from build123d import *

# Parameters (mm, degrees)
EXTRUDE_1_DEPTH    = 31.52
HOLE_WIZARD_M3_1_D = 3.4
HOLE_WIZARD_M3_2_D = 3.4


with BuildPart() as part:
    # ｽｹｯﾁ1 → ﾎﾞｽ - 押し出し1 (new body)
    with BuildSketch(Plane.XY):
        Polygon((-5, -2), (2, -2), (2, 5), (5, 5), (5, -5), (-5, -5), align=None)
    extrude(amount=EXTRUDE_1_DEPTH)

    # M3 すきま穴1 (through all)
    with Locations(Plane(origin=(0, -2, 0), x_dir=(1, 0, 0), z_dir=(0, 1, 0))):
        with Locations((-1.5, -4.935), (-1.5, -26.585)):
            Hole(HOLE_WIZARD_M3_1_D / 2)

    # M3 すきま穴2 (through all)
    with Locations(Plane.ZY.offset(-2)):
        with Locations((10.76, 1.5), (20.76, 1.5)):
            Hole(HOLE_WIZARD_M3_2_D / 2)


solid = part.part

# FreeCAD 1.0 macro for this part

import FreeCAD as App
import Part
import Sketcher

V = App.Vector
Q = App.Units.Quantity


def add_polygon(sketch, points):
    """Adds a closed chain of lines whose ends are joined by coincident constraints."""
    first, n = sketch.GeometryCount, len(points)
    for a, b in zip(points, points[1:] + points[:1]):
        sketch.addGeometry(Part.LineSegment(App.Vector(*a, 0), App.Vector(*b, 0)), False)
    for i in range(n):
        sketch.addConstraint(Sketcher.Constraint("Coincident", first + i, 2, first + (i + 1) % n, 1))

doc = App.newDocument("Part")
body = doc.addObject("PartDesign::Body", "Body")

sketch1 = doc.addObject("Sketcher::SketchObject", "Sketch")
body.addObject(sketch1)
sketch1.AttachmentSupport = (doc.XY_Plane, [""])
sketch1.MapMode = "FlatFace"
add_polygon(sketch1, [(2, -2), (-5, -2), (-5, -5), (5, -5), (5, 5), (2, 5)])
sketch1.addConstraint([
    Sketcher.Constraint("Horizontal", 0),
    Sketcher.Constraint("Vertical", 1),
    Sketcher.Constraint("Horizontal", 2),
    Sketcher.Constraint("Vertical", 3),
    Sketcher.Constraint("Horizontal", 4),
    Sketcher.Constraint("Vertical", 5),
    Sketcher.Constraint("Symmetric", 1, 2, 3, 2, -1, 1),
    Sketcher.Constraint("Equal", 4, 1),
    Sketcher.Constraint("Equal", 2, 3),
    Sketcher.Constraint("DistanceX", 0, 2, 0, 1, Q("7 mm")),
    Sketcher.Constraint("DistanceX", 2, 1, 2, 2, Q("10 mm")),
])
pad1 = doc.addObject("PartDesign::Pad", "Pad")
body.addObject(pad1)
pad1.Profile = sketch1
pad1.Length = 31.52

sketch2 = doc.addObject("Sketcher::SketchObject", "Sketch001")
body.addObject(sketch2)
sketch2.AttachmentSupport = (doc.XZ_Plane, [""])
sketch2.MapMode = "FlatFace"
sketch2.AttachmentOffset = App.Placement(V(0, 0, 2), App.Rotation())
sketch2.addGeometry([
    Part.Circle(V(-1.5, 4.935, 0), V(0, 0, 1), 1.7),
    Part.Circle(V(-1.5, 26.585, 0), V(0, 0, 1), 1.7),
], False)
sketch2.addConstraint([
    Sketcher.Constraint("Equal", 0, 1),
    Sketcher.Constraint("Vertical", 0, 3, 1, 3),
    Sketcher.Constraint("Diameter", 0, Q("3.4 mm")),
    Sketcher.Constraint("DistanceX", 0, 3, -1, 1, Q("1.5 mm")),
    Sketcher.Constraint("DistanceY", 0, 3, 1, 3, Q("21.65 mm")),
    Sketcher.Constraint("DistanceY", -1, 1, 0, 3, Q("4.935 mm")),
])
doc.recompute()
hole = doc.addObject("PartDesign::Hole", "Hole")
body.addObject(hole)
hole.Profile = sketch2
hole.ThreadType = "None"
hole.Diameter = 3.4
hole.DepthType = "ThroughAll"
hole.Reversed = True

sketch3 = doc.addObject("Sketcher::SketchObject", "Sketch002")
body.addObject(sketch3)
sketch3.AttachmentSupport = (doc.YZ_Plane, [""])
sketch3.MapMode = "FlatFace"
sketch3.AttachmentOffset = App.Placement(V(0, 0, 2), App.Rotation())
sketch3.addGeometry([
    Part.Circle(V(1.5, 10.76, 0), V(0, 0, 1), 1.7),
    Part.Circle(V(1.5, 20.76, 0), V(0, 0, 1), 1.7),
], False)
sketch3.addConstraint([
    Sketcher.Constraint("Equal", 0, 1),
    Sketcher.Constraint("Vertical", 0, 3, 1, 3),
    Sketcher.Constraint("Diameter", 0, Q("3.4 mm")),
    Sketcher.Constraint("DistanceY", 0, 3, 1, 3, Q("10 mm")),
    Sketcher.Constraint("DistanceX", -1, 1, 0, 3, Q("1.5 mm")),
    Sketcher.Constraint("DistanceY", -1, 1, 0, 3, Q("10.76 mm")),
])
doc.recompute()
hole2 = doc.addObject("PartDesign::Hole", "Hole001")
body.addObject(hole2)
hole2.Profile = sketch3
hole2.ThreadType = "None"
hole2.Diameter = 3.4
hole2.DepthType = "ThroughAll"
hole2.Reversed = True

doc.recompute()
